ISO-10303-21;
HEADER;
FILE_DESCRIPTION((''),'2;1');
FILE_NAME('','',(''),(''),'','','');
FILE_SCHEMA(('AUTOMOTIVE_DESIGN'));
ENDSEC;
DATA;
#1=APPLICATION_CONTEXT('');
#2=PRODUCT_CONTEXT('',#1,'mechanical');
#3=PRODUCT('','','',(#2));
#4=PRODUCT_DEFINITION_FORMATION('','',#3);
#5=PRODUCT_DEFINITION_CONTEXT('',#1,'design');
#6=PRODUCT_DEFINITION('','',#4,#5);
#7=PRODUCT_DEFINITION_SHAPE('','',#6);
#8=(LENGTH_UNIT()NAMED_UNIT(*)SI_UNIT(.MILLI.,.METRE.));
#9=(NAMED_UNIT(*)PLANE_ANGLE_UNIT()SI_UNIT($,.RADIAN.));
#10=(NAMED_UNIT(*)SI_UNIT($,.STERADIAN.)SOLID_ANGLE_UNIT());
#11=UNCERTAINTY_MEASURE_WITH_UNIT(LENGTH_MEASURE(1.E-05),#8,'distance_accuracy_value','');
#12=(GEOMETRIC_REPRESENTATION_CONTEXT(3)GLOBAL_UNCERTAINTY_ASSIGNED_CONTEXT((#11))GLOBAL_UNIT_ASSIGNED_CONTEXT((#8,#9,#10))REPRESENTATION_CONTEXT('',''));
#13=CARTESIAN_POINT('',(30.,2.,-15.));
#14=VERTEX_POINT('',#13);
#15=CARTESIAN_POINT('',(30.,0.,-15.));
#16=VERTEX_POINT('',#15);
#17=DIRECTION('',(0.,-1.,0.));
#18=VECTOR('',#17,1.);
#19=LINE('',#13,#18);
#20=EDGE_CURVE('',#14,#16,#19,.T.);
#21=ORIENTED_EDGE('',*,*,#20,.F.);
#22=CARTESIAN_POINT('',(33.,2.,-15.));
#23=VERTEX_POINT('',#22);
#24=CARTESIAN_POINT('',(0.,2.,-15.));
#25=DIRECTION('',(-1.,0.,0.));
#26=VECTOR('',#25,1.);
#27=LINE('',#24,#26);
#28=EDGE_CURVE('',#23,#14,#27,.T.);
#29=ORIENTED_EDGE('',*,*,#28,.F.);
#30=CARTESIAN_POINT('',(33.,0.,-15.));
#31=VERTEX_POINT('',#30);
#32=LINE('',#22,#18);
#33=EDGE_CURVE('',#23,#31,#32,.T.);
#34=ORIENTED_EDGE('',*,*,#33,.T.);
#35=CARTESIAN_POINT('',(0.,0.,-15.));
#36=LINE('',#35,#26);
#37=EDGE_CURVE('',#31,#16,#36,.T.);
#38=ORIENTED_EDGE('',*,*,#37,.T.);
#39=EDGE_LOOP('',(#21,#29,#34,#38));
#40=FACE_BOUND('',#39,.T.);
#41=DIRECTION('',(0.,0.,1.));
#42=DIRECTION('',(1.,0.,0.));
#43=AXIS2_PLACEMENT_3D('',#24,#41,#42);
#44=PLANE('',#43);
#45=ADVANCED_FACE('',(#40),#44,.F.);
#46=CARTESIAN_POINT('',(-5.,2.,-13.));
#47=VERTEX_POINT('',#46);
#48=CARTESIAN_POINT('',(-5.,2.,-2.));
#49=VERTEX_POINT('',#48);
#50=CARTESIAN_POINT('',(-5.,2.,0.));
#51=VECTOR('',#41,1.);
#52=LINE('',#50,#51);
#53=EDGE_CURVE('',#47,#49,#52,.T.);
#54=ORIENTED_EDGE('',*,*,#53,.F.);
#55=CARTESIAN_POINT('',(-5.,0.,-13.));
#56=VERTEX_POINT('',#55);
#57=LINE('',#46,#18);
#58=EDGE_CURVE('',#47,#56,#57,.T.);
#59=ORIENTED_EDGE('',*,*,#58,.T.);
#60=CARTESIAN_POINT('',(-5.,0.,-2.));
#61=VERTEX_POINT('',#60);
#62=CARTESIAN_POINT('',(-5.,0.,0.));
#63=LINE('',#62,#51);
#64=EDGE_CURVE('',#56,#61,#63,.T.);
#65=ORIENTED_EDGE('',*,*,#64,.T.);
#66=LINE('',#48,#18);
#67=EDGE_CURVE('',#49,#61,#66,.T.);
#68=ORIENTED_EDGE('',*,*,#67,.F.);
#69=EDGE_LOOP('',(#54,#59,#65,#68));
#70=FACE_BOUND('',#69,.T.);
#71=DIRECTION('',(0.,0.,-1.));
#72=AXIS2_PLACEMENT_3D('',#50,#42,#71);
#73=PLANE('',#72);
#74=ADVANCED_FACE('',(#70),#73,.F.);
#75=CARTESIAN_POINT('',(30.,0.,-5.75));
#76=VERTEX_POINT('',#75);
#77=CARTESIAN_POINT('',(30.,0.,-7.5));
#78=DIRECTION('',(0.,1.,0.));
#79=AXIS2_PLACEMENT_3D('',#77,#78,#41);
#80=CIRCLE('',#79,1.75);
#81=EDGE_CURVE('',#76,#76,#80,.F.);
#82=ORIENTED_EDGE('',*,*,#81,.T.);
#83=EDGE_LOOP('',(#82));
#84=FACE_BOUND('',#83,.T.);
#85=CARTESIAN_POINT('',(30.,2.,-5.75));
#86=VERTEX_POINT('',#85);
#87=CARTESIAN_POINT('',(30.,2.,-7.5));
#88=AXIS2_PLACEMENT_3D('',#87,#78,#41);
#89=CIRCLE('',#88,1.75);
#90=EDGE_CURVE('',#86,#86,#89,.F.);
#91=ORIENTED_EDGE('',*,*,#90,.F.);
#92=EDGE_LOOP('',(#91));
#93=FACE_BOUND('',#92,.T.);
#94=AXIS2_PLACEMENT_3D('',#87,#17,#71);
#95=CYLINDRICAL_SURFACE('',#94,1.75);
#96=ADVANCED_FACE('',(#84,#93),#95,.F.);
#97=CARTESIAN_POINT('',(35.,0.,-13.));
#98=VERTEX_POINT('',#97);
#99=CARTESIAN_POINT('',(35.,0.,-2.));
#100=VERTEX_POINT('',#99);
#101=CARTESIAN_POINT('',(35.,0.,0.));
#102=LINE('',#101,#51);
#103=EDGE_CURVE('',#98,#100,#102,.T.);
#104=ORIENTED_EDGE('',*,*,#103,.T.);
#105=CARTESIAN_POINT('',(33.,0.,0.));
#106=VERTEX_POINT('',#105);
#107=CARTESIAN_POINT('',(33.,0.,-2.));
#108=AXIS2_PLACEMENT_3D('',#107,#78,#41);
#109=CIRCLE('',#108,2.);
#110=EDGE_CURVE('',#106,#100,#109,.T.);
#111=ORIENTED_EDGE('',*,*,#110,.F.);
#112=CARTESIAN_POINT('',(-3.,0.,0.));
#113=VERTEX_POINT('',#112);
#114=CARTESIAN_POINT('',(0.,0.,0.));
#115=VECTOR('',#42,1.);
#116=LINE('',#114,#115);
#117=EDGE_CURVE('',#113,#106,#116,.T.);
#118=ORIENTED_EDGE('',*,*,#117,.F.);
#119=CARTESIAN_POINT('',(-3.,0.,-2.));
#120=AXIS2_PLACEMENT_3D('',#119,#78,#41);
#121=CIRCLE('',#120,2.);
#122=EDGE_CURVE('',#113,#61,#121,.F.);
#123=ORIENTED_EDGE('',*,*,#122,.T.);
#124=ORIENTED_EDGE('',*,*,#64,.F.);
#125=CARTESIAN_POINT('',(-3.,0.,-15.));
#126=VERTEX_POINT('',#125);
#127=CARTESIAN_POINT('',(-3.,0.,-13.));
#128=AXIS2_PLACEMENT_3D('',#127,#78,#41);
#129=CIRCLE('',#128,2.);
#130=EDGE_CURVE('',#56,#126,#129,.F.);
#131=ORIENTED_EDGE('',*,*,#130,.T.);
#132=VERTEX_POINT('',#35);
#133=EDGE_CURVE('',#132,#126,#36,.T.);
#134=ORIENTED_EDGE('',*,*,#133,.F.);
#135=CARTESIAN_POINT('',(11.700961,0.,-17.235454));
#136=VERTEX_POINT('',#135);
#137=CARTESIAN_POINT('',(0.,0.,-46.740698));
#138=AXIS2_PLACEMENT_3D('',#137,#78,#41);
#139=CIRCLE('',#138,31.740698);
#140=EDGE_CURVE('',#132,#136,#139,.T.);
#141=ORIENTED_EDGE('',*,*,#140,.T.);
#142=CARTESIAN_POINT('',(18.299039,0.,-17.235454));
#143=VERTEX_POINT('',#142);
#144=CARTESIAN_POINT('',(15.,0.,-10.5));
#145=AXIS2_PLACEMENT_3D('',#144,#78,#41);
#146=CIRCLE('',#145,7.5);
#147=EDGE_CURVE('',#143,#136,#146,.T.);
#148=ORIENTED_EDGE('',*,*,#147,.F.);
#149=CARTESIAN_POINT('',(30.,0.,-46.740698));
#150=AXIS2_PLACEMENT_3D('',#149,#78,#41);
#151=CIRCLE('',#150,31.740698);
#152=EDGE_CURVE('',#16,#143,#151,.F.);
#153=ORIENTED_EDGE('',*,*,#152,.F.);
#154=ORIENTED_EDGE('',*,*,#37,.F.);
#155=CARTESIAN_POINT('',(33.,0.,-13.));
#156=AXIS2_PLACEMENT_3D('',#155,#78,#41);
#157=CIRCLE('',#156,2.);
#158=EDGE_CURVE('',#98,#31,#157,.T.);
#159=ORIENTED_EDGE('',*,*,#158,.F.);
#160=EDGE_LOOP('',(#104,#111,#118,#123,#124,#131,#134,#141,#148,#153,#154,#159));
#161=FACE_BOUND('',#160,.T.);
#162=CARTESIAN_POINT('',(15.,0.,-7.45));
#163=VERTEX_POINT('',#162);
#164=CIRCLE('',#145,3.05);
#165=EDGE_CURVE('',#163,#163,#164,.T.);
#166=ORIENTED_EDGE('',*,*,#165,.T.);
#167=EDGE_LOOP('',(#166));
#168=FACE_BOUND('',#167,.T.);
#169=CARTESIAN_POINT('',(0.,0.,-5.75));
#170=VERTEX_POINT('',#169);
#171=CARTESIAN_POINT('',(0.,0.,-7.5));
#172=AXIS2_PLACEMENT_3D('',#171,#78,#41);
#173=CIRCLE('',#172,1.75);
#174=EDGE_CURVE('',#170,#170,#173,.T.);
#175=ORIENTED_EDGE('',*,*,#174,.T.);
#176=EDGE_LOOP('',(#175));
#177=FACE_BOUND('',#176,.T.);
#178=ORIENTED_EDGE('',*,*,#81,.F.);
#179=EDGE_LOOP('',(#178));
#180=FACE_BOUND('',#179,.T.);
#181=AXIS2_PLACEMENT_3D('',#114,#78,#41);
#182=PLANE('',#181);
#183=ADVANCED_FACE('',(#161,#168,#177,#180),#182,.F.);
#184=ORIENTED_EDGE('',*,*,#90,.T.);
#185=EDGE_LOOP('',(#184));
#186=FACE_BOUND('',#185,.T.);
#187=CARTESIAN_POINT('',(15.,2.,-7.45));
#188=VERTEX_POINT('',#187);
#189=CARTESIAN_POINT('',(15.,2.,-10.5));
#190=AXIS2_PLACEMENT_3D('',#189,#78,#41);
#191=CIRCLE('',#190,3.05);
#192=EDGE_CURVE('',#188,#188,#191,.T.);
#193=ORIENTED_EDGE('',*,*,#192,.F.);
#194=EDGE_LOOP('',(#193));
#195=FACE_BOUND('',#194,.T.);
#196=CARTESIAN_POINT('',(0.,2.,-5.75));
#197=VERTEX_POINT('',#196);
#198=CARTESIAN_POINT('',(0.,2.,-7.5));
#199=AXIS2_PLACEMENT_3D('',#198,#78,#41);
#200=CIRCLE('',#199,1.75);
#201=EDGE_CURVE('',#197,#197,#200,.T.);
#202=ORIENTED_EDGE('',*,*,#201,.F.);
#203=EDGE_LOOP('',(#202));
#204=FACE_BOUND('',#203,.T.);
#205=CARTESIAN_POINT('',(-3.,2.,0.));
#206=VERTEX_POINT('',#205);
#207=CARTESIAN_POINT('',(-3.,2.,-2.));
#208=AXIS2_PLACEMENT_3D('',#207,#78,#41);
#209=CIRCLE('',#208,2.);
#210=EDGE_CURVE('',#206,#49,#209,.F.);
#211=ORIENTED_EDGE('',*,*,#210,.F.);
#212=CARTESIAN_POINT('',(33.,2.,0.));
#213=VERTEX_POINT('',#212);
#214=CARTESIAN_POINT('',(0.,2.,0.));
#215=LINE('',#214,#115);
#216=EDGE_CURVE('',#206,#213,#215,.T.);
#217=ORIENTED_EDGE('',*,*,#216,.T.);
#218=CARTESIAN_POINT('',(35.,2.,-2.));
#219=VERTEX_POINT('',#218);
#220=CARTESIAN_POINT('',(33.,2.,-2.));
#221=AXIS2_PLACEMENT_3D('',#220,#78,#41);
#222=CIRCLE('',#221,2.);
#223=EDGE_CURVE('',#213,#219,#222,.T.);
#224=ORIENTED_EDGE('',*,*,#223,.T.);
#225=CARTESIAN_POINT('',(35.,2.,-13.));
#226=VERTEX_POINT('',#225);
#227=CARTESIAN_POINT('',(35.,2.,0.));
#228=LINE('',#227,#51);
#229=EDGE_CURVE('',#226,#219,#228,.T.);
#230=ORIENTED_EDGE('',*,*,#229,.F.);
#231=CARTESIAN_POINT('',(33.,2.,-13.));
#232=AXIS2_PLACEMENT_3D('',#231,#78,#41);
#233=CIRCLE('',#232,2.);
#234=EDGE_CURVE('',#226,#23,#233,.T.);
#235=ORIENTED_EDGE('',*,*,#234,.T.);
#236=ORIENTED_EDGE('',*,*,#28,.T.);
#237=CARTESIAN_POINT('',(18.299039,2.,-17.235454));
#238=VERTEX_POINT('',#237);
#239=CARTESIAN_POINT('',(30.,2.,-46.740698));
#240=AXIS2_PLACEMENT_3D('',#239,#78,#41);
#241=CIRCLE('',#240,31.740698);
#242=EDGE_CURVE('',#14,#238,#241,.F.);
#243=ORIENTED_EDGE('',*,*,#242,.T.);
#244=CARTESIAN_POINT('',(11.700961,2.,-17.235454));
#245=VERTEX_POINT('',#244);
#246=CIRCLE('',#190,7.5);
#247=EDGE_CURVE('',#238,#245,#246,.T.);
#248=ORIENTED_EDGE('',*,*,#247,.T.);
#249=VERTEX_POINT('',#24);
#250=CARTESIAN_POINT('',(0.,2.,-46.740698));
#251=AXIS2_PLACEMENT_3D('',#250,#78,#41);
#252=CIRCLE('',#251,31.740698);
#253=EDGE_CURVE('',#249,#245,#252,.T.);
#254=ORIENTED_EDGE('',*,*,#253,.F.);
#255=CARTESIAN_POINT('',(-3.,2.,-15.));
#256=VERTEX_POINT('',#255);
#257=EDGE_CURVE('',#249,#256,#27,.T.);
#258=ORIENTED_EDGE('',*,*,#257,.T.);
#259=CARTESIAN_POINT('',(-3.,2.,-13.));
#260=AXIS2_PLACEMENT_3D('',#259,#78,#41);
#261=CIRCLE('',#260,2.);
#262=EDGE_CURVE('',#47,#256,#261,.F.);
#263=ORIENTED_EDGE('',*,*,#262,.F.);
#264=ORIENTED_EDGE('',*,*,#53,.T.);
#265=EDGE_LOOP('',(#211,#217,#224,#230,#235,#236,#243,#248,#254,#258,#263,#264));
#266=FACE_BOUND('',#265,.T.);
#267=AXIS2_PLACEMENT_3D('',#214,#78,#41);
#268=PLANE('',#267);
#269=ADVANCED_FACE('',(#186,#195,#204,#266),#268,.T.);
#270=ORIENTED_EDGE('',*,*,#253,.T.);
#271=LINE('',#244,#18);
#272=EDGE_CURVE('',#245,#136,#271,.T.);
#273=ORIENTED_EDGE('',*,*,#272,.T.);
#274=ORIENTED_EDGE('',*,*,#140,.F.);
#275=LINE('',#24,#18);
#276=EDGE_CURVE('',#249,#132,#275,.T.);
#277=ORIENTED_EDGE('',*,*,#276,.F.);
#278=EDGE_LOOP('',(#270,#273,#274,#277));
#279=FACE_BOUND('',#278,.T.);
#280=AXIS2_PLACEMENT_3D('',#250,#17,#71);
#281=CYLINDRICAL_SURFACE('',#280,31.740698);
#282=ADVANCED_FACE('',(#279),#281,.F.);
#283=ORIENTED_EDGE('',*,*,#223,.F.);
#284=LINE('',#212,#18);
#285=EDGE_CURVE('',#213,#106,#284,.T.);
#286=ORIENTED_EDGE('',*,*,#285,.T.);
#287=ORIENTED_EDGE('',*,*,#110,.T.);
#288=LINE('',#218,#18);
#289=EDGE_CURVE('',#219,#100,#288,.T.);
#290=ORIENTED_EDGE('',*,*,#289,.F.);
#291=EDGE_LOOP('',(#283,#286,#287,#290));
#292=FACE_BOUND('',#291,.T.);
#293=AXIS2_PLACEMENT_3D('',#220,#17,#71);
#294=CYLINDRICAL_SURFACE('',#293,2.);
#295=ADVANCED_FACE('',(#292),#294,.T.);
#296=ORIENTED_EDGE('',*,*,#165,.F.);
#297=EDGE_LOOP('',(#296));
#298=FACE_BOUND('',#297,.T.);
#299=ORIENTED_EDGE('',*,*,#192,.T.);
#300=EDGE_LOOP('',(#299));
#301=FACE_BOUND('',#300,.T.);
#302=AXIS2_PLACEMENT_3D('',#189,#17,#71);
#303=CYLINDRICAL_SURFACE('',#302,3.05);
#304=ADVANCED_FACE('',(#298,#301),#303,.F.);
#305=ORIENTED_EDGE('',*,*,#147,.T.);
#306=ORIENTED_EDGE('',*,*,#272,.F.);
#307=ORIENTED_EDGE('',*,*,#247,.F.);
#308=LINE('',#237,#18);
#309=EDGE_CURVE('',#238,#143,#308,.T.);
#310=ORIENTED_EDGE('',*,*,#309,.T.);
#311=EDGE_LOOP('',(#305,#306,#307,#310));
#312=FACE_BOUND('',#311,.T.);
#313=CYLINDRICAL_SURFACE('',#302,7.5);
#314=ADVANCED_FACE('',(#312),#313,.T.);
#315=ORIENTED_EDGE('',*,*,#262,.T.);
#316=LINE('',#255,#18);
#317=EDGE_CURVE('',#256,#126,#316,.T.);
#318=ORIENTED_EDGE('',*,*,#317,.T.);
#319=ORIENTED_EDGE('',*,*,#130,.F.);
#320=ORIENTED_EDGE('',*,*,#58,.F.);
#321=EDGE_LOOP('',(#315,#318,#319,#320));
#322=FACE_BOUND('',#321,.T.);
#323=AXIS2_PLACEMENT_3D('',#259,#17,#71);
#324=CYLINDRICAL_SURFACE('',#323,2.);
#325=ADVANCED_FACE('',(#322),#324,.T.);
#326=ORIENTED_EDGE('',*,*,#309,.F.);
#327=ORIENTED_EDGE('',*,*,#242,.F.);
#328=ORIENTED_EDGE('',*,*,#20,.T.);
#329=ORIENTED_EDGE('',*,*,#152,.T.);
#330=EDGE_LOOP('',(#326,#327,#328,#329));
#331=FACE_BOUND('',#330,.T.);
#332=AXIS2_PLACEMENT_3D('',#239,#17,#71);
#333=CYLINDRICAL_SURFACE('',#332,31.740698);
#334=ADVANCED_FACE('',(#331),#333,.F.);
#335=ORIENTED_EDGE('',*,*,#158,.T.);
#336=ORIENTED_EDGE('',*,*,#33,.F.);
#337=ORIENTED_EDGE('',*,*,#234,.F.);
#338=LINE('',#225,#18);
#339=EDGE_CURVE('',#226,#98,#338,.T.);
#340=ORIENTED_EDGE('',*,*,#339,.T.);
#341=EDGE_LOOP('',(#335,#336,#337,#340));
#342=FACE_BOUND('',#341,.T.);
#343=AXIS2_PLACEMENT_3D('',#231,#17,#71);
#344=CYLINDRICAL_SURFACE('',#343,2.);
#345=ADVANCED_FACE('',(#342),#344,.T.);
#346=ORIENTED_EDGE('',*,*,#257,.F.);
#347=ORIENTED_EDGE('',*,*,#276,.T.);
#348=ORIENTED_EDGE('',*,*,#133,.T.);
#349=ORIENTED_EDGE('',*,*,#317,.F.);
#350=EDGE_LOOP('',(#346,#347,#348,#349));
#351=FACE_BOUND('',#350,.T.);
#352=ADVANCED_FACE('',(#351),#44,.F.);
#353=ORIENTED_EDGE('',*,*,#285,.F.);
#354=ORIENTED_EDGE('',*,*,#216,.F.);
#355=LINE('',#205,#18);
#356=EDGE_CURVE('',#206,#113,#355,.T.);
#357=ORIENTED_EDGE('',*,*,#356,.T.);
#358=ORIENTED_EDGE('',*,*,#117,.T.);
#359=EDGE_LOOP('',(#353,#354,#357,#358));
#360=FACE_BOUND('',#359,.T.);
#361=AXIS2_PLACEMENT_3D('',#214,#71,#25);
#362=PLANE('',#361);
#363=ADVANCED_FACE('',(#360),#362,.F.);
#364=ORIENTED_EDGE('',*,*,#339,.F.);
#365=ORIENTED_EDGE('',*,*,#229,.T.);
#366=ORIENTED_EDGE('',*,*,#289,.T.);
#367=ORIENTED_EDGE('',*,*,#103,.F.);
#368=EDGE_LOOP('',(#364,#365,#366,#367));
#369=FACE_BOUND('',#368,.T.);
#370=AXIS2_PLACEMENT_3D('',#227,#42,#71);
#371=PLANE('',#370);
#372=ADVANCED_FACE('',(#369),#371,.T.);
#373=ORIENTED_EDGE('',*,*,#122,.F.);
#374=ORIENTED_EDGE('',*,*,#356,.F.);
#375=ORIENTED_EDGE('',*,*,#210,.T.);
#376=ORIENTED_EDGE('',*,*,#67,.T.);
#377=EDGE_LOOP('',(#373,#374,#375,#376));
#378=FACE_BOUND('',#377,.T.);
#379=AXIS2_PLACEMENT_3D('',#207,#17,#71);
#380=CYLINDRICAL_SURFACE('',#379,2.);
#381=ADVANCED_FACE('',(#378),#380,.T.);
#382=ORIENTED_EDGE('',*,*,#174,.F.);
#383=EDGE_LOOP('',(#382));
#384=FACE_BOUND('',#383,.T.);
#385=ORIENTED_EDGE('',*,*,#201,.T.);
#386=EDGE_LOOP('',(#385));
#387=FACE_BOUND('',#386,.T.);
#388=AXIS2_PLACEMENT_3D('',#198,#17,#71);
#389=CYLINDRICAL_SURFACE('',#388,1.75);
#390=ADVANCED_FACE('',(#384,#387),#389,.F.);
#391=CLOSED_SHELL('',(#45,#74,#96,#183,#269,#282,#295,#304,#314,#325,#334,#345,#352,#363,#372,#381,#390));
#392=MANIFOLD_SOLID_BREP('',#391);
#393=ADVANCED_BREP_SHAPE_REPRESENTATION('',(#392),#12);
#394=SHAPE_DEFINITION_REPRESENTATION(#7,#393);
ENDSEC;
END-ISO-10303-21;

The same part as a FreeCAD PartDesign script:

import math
import FreeCAD as App
import Part
import Sketcher

V = App.Vector
Q = App.Units.Quantity

doc = App.newDocument("Part")
params = doc.addObject("Spreadsheet::Sheet", "Params")
for row, (alias, value) in enumerate([
    ("sketch1_radius", "2 mm"),
    ("sketch1_diameter", "3.5 mm"),
    ("sketch1_diameter2", "6.1 mm"),
    ("sketch1_radius2", "7.5 mm"),
    ("sketch1_width", "3 mm"),
    ("pad1_length", "2 mm"),
], start=1):
    params.set(f"A{row}", alias)
    params.set(f"B{row}", "=" + value)
    params.setAlias(f"B{row}", alias)

body = doc.addObject("PartDesign::Body", "Body")

# Sketch on XZ plane
sketch1 = body.newObject("Sketcher::SketchObject", "Sketch")
sketch1.AttachmentSupport = (doc.getObject("XZ_Plane"), [""])
sketch1.MapMode = "FlatFace"
sketch1.addGeometry([
    Part.ArcOfCircle(Part.Circle(V(0, -46.740698, 0), V(0, 0, 1), 31.740698), math.radians(68.368097), math.radians(90)),  # 0
    Part.LineSegment(V(0, -15, 0), V(-3, -15, 0)),  # 1
    Part.ArcOfCircle(Part.Circle(V(-3, -13, 0), V(0, 0, 1), 2), math.radians(-180), math.radians(-90)),  # 2
    Part.LineSegment(V(-5, -13, 0), V(-5, -2, 0)),  # 3
    Part.ArcOfCircle(Part.Circle(V(-3, -2, 0), V(0, 0, 1), 2), math.radians(90), math.radians(180)),  # 4
    Part.LineSegment(V(-3, 0, 0), V(33, 0, 0)),  # 5
    Part.ArcOfCircle(Part.Circle(V(33, -2, 0), V(0, 0, 1), 2), math.radians(0), math.radians(90)),  # 6
    Part.LineSegment(V(35, -2, 0), V(35, -13, 0)),  # 7
    Part.ArcOfCircle(Part.Circle(V(33, -13, 0), V(0, 0, 1), 2), math.radians(-90), math.radians(0)),  # 8
    Part.LineSegment(V(33, -15, 0), V(30, -15, 0)),  # 9
    Part.ArcOfCircle(Part.Circle(V(30, -46.740698, 0), V(0, 0, 1), 31.740698), math.radians(90), math.radians(111.631903)),  # 10
    Part.ArcOfCircle(Part.Circle(V(15, -10.5, 0), V(0, 0, 1), 7.5), math.radians(-116.095707), math.radians(-63.904293)),  # 11
    Part.Circle(V(0, -7.5, 0), V(0, 0, 1), 1.75),  # 12
    Part.Circle(V(30, -7.5, 0), V(0, 0, 1), 1.75),  # 13
    Part.Circle(V(15, -10.5, 0), V(0, 0, 1), 3.05),  # 14
], False)
sketch1.addConstraint([
    Sketcher.Constraint("Tangent", 0, 2, 1, 1),
    Sketcher.Constraint("Tangent", 1, 2, 2, 2),
    Sketcher.Constraint("Tangent", 2, 1, 3, 1),
    Sketcher.Constraint("Tangent", 3, 2, 4, 2),
    Sketcher.Constraint("Tangent", 4, 1, 5, 1),
    Sketcher.Constraint("Tangent", 5, 2, 6, 2),
    Sketcher.Constraint("Tangent", 6, 1, 7, 1),
    Sketcher.Constraint("Tangent", 7, 2, 8, 2),
    Sketcher.Constraint("Tangent", 8, 1, 9, 1),
    Sketcher.Constraint("Tangent", 9, 2, 10, 1),
    Sketcher.Constraint("Coincident", 10, 2, 11, 2),
    Sketcher.Constraint("Coincident", 11, 1, 0, 1),
    Sketcher.Constraint("Horizontal", 1),
    Sketcher.Constraint("Vertical", 3),
    Sketcher.Constraint("Horizontal", 5),
    Sketcher.Constraint("Vertical", 7),
    Sketcher.Constraint("Horizontal", 9),
    Sketcher.Constraint("Coincident", 14, 3, 11, 3),
    Sketcher.Constraint("Equal", 2, 4),
    Sketcher.Constraint("Equal", 4, 6),
    Sketcher.Constraint("Equal", 6, 8),
    Sketcher.Constraint("Equal", 0, 10),
    Sketcher.Constraint("Equal", 12, 13),
    Sketcher.Constraint("PointOnObject", 0, 3, -2),
    Sketcher.Constraint("PointOnObject", 12, 3, -2),
    Sketcher.Constraint("PointOnObject", 4, 1, -1),
    Sketcher.Constraint("Horizontal", 2, 3, 8, 3),
    Sketcher.Constraint("Horizontal", 12, 3, 13, 3),
    Sketcher.Constraint("Horizontal", 10, 2, 11, 1),
    Sketcher.Constraint("Vertical", 10, 3, 13, 3),
    Sketcher.Constraint("Equal", 1, 9),
    Sketcher.Constraint("Radius", 2, Q("2 mm")),
    Sketcher.Constraint("Diameter", 12, Q("3.5 mm")),
    Sketcher.Constraint("Diameter", 14, Q("6.1 mm")),
    Sketcher.Constraint("Radius", 11, Q("7.5 mm")),
    Sketcher.Constraint("DistanceX", 1, 2, 1, 1, Q("3 mm")),
    Sketcher.Constraint("DistanceX", 5, 1, 5, 2, Q("36 mm")),
    Sketcher.Constraint("DistanceY", 3, 1, 3, 2, Q("11 mm")),
    Sketcher.Constraint("DistanceY", 11, 3, 12, 3, Q("3 mm")),
    Sketcher.Constraint("DistanceY", 11, 3, -1, 1, Q("10.5 mm")),
    Sketcher.Constraint("Radius", 0, Q("31.740698 mm")),
])
sketch1.setExpression("Constraints[31]", "Params.sketch1_radius")
sketch1.setExpression("Constraints[32]", "Params.sketch1_diameter")
sketch1.setExpression("Constraints[33]", "Params.sketch1_diameter2")
sketch1.setExpression("Constraints[34]", "Params.sketch1_radius2")
sketch1.setExpression("Constraints[35]", "Params.sketch1_width")
pad1 = body.newObject("PartDesign::Pad", "Pad")
pad1.Profile = sketch1
pad1.setExpression("Length", "Params.pad1_length")
pad1.Reversed = True

doc.recompute()
